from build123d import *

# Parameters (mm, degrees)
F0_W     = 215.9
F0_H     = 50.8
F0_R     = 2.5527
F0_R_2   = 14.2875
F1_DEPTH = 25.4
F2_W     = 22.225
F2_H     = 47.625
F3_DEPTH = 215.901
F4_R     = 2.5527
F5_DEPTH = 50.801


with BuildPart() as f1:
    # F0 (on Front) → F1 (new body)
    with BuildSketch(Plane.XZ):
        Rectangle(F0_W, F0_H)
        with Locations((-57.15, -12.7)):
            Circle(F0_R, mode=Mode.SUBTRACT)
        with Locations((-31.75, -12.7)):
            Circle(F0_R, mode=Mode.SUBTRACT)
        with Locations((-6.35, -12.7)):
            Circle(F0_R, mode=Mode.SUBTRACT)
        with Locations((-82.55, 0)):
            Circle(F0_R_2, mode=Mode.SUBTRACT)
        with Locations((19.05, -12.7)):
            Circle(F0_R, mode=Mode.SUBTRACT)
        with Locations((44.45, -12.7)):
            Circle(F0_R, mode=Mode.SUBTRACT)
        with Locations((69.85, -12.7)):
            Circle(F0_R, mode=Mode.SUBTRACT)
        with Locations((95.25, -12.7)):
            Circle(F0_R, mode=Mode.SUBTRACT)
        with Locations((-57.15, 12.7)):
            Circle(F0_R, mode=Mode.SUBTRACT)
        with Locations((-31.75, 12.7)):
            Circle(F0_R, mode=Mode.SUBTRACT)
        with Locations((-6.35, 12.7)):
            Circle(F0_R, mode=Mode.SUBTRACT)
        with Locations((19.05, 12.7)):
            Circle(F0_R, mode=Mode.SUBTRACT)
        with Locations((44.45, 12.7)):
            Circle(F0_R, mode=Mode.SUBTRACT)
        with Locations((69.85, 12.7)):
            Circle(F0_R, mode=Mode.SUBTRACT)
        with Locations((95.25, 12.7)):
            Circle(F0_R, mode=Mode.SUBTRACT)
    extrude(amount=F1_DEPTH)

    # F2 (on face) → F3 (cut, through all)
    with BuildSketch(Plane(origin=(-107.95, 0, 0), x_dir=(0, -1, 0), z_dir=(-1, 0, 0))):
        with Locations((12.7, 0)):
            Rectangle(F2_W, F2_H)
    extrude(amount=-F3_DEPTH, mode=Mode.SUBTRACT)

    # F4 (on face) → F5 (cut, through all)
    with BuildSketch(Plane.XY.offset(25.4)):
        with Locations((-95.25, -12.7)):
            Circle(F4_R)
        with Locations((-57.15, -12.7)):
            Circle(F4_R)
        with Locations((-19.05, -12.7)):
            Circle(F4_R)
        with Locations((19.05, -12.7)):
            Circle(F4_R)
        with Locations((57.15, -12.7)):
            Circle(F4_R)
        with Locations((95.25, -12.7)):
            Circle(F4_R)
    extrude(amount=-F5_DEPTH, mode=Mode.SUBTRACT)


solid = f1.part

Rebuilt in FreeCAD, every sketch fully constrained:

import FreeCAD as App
import Part
import Sketcher

V = App.Vector
Q = App.Units.Quantity

doc = App.newDocument("Part")
body = doc.addObject("PartDesign::Body", "Body")

# Sketch on XZ plane
sketch1 = body.newObject("Sketcher::SketchObject", "Sketch")
sketch1.AttachmentSupport = (doc.getObject("XZ_Plane"), [""])
sketch1.MapMode = "FlatFace"
sketch1.addGeometry(Part.LineSegment(V(-107.95, 25.4, 0), V(-107.95, -25.4, 0)), False)
sketch1.addGeometry(Part.LineSegment(V(-107.95, -25.4, 0), V(107.95, -25.4, 0)), False)
sketch1.addGeometry(Part.LineSegment(V(107.95, -25.4, 0), V(107.95, 25.4, 0)), False)
sketch1.addGeometry(Part.LineSegment(V(107.95, 25.4, 0), V(-107.95, 25.4, 0)), False)
sketch1.addGeometry(Part.Circle(V(-57.15, -12.7, 0), V(0, 0, 1), 2.5527), False)
sketch1.addGeometry(Part.Circle(V(-31.75, -12.7, 0), V(0, 0, 1), 2.5527), False)
sketch1.addGeometry(Part.Circle(V(-6.35, -12.7, 0), V(0, 0, 1), 2.5527), False)
sketch1.addGeometry(Part.Circle(V(19.05, -12.7, 0), V(0, 0, 1), 2.5527), False)
sketch1.addGeometry(Part.Circle(V(44.45, -12.7, 0), V(0, 0, 1), 2.5527), False)
sketch1.addGeometry(Part.Circle(V(69.85, -12.7, 0), V(0, 0, 1), 2.5527), False)
sketch1.addGeometry(Part.Circle(V(95.25, -12.7, 0), V(0, 0, 1), 2.5527), False)
sketch1.addGeometry(Part.Circle(V(-82.55, 0, 0), V(0, 0, 1), 14.2875), False)
sketch1.addGeometry(Part.Circle(V(-57.15, 12.7, 0), V(0, 0, 1), 2.5527), False)
sketch1.addGeometry(Part.Circle(V(-31.75, 12.7, 0), V(0, 0, 1), 2.5527), False)
sketch1.addGeometry(Part.Circle(V(-6.35, 12.7, 0), V(0, 0, 1), 2.5527), False)
sketch1.addGeometry(Part.Circle(V(19.05, 12.7, 0), V(0, 0, 1), 2.5527), False)
sketch1.addGeometry(Part.Circle(V(44.45, 12.7, 0), V(0, 0, 1), 2.5527), False)
sketch1.addGeometry(Part.Circle(V(69.85, 12.7, 0), V(0, 0, 1), 2.5527), False)
sketch1.addGeometry(Part.Circle(V(95.25, 12.7, 0), V(0, 0, 1), 2.5527), False)
sketch1.addConstraint(Sketcher.Constraint("Coincident", 0, 2, 1, 1))
sketch1.addConstraint(Sketcher.Constraint("Coincident", 1, 2, 2, 1))
sketch1.addConstraint(Sketcher.Constraint("Coincident", 2, 2, 3, 1))
sketch1.addConstraint(Sketcher.Constraint("Coincident", 3, 2, 0, 1))
sketch1.addConstraint(Sketcher.Constraint("Vertical", 0))
sketch1.addConstraint(Sketcher.Constraint("Horizontal", 1))
sketch1.addConstraint(Sketcher.Constraint("Vertical", 2))
sketch1.addConstraint(Sketcher.Constraint("Horizontal", 3))
sketch1.addConstraint(Sketcher.Constraint("Equal", 4, 5))
sketch1.addConstraint(Sketcher.Constraint("Equal", 5, 6))
sketch1.addConstraint(Sketcher.Constraint("Equal", 6, 7))
sketch1.addConstraint(Sketcher.Constraint("Equal", 7, 8))
sketch1.addConstraint(Sketcher.Constraint("Equal", 8, 9))
sketch1.addConstraint(Sketcher.Constraint("Equal", 9, 10))
sketch1.addConstraint(Sketcher.Constraint("Equal", 10, 12))
sketch1.addConstraint(Sketcher.Constraint("Equal", 12, 13))
sketch1.addConstraint(Sketcher.Constraint("Equal", 13, 14))
sketch1.addConstraint(Sketcher.Constraint("Equal", 14, 15))
sketch1.addConstraint(Sketcher.Constraint("Equal", 15, 16))
sketch1.addConstraint(Sketcher.Constraint("Equal", 16, 17))
sketch1.addConstraint(Sketcher.Constraint("Equal", 17, 18))
sketch1.addConstraint(Sketcher.Constraint("Symmetric", 0, 2, 2, 2, -1, 1))
sketch1.addConstraint(Sketcher.Constraint("Symmetric", 4, 3, 12, 3, -1))
sketch1.addConstraint(Sketcher.Constraint("Symmetric", 5, 3, 13, 3, -1))
sketch1.addConstraint(Sketcher.Constraint("Symmetric", 6, 3, 14, 3, -1))
sketch1.addConstraint(Sketcher.Constraint("Symmetric", 7, 3, 15, 3, -1))
sketch1.addConstraint(Sketcher.Constraint("Symmetric", 8, 3, 16, 3, -1))
sketch1.addConstraint(Sketcher.Constraint("Symmetric", 9, 3, 17, 3, -1))
sketch1.addConstraint(Sketcher.Constraint("Symmetric", 10, 3, 18, 3, -1))
sketch1.addConstraint(Sketcher.Constraint("PointOnObject", 11, 3, -1))
sketch1.addConstraint(Sketcher.Constraint("Horizontal", 4, 3, 5, 3))
sketch1.addConstraint(Sketcher.Constraint("Horizontal", 5, 3, 6, 3))
sketch1.addConstraint(Sketcher.Constraint("Horizontal", 6, 3, 7, 3))
sketch1.addConstraint(Sketcher.Constraint("Horizontal", 7, 3, 8, 3))
sketch1.addConstraint(Sketcher.Constraint("Horizontal", 8, 3, 9, 3))
sketch1.addConstraint(Sketcher.Constraint("Horizontal", 9, 3, 10, 3))
sketch1.addConstraint(Sketcher.Constraint("DistanceY", 0, 2, 0, 1, Q("2 in")))
sketch1.addConstraint(Sketcher.Constraint("Diameter", 4, Q("0.201 in")))
sketch1.addConstraint(Sketcher.Constraint("Diameter", 11, Q("1.125 in")))
sketch1.addConstraint(Sketcher.Constraint("DistanceX", 1, 1, 1, 2, Q("8.5 in")))
sketch1.addConstraint(Sketcher.Constraint("DistanceX", 4, 3, 5, 3, Q("1 in")))
sketch1.addConstraint(Sketcher.Constraint("DistanceX", 5, 3, 6, 3, Q("1 in")))
sketch1.addConstraint(Sketcher.Constraint("DistanceX", 6, 3, 7, 3, Q("1 in")))
sketch1.addConstraint(Sketcher.Constraint("DistanceX", 7, 3, 8, 3, Q("1 in")))
sketch1.addConstraint(Sketcher.Constraint("DistanceX", 8, 3, 9, 3, Q("1 in")))
sketch1.addConstraint(Sketcher.Constraint("DistanceX", 9, 3, 10, 3, Q("1 in")))
sketch1.addConstraint(Sketcher.Constraint("DistanceX", 11, 3, 4, 3, Q("1 in")))
sketch1.addConstraint(Sketcher.Constraint("DistanceY", 4, 3, 12, 3, Q("1 in")))
sketch1.addConstraint(Sketcher.Constraint("DistanceX", 0, 2, 11, 3, Q("1 in")))
pad1 = body.newObject("PartDesign::Pad", "Pad")
pad1.Profile = sketch1
pad1.Length = Q("1 in")

# Sketch on YZ plane
sketch2 = body.newObject("Sketcher::SketchObject", "Sketch001")
sketch2.AttachmentSupport = (doc.getObject("YZ_Plane"), [""])
sketch2.MapMode = "FlatFace"
sketch2.AttachmentOffset = App.Placement(V(0, 0, -4.25 * 25.4), App.Rotation())
sketch2.addGeometry(Part.LineSegment(V(-1.5875, 23.8125, 0), V(-1.5875, -23.8125, 0)), False)
sketch2.addGeometry(Part.LineSegment(V(-1.5875, -23.8125, 0), V(-23.8125, -23.8125, 0)), False)
sketch2.addGeometry(Part.LineSegment(V(-23.8125, -23.8125, 0), V(-23.8125, 23.8125, 0)), False)
sketch2.addGeometry(Part.LineSegment(V(-23.8125, 23.8125, 0), V(-1.5875, 23.8125, 0)), False)
sketch2.addConstraint(Sketcher.Constraint("Coincident", 0, 2, 1, 1))
sketch2.addConstraint(Sketcher.Constraint("Coincident", 1, 2, 2, 1))
sketch2.addConstraint(Sketcher.Constraint("Coincident", 2, 2, 3, 1))
sketch2.addConstraint(Sketcher.Constraint("Coincident", 3, 2, 0, 1))
sketch2.addConstraint(Sketcher.Constraint("Vertical", 0))
sketch2.addConstraint(Sketcher.Constraint("Horizontal", 1))
sketch2.addConstraint(Sketcher.Constraint("Vertical", 2))
sketch2.addConstraint(Sketcher.Constraint("Horizontal", 3))
sketch2.addConstraint(Sketcher.Constraint("DistanceX", 1, 2, 1, 1, Q("0.875 in")))
sketch2.addConstraint(Sketcher.Constraint("DistanceY", 0, 2, 0, 1, Q("1.875 in")))
sketch2.addConstraint(Sketcher.Constraint("DistanceX", 0, 2, -1, 1, Q("0.0625 in")))
sketch2.addConstraint(Sketcher.Constraint("DistanceY", 0, 2, -1, 1, Q("0.9375 in")))
pocket1 = body.newObject("PartDesign::Pocket", "Pocket")
pocket1.Profile = sketch2
pocket1.Type = "ThroughAll"
pocket1.Reversed = True

# Sketch on XY plane
sketch3 = body.newObject("Sketcher::SketchObject", "Sketch002")
sketch3.AttachmentSupport = (doc.getObject("XY_Plane"), [""])
sketch3.MapMode = "FlatFace"
sketch3.AttachmentOffset = App.Placement(V(0, 0, 1 * 25.4), App.Rotation())
sketch3.addGeometry(Part.Circle(V(-95.25, -12.7, 0), V(0, 0, 1), 2.5527), False)
sketch3.addGeometry(Part.Circle(V(-57.15, -12.7, 0), V(0, 0, 1), 2.5527), False)
sketch3.addGeometry(Part.Circle(V(-19.05, -12.7, 0), V(0, 0, 1), 2.5527), False)
sketch3.addGeometry(Part.Circle(V(19.05, -12.7, 0), V(0, 0, 1), 2.5527), False)
sketch3.addGeometry(Part.Circle(V(57.15, -12.7, 0), V(0, 0, 1), 2.5527), False)
sketch3.addGeometry(Part.Circle(V(95.25, -12.7, 0), V(0, 0, 1), 2.5527), False)
sketch3.addConstraint(Sketcher.Constraint("Equal", 0, 1))
sketch3.addConstraint(Sketcher.Constraint("Equal", 1, 2))
sketch3.addConstraint(Sketcher.Constraint("Equal", 2, 3))
sketch3.addConstraint(Sketcher.Constraint("Equal", 3, 4))
sketch3.addConstraint(Sketcher.Constraint("Equal", 4, 5))
sketch3.addConstraint(Sketcher.Constraint("Symmetric", 2, 3, 3, 3, -2))
sketch3.addConstraint(Sketcher.Constraint("Symmetric", 1, 3, 4, 3, -2))
sketch3.addConstraint(Sketcher.Constraint("Symmetric", 0, 3, 5, 3, -2))
sketch3.addConstraint(Sketcher.Constraint("Horizontal", 0, 3, 1, 3))
sketch3.addConstraint(Sketcher.Constraint("Horizontal", 1, 3, 2, 3))
sketch3.addConstraint(Sketcher.Constraint("Diameter", 0, Q("0.201 in")))
sketch3.addConstraint(Sketcher.Constraint("DistanceX", 0, 3, 2, 3, Q("3 in")))
sketch3.addConstraint(Sketcher.Constraint("DistanceX", 1, 3, 3, 3, Q("3 in")))
sketch3.addConstraint(Sketcher.Constraint("DistanceY", 0, 3, -1, 1, Q("0.5 in")))
sketch3.addConstraint(Sketcher.Constraint("DistanceX", 0, 3, 1, 3, Q("1.5 in")))
pocket2 = body.newObject("PartDesign::Pocket", "Pocket001")
pocket2.Profile = sketch3
pocket2.Type = "ThroughAll"

doc.recompute()
